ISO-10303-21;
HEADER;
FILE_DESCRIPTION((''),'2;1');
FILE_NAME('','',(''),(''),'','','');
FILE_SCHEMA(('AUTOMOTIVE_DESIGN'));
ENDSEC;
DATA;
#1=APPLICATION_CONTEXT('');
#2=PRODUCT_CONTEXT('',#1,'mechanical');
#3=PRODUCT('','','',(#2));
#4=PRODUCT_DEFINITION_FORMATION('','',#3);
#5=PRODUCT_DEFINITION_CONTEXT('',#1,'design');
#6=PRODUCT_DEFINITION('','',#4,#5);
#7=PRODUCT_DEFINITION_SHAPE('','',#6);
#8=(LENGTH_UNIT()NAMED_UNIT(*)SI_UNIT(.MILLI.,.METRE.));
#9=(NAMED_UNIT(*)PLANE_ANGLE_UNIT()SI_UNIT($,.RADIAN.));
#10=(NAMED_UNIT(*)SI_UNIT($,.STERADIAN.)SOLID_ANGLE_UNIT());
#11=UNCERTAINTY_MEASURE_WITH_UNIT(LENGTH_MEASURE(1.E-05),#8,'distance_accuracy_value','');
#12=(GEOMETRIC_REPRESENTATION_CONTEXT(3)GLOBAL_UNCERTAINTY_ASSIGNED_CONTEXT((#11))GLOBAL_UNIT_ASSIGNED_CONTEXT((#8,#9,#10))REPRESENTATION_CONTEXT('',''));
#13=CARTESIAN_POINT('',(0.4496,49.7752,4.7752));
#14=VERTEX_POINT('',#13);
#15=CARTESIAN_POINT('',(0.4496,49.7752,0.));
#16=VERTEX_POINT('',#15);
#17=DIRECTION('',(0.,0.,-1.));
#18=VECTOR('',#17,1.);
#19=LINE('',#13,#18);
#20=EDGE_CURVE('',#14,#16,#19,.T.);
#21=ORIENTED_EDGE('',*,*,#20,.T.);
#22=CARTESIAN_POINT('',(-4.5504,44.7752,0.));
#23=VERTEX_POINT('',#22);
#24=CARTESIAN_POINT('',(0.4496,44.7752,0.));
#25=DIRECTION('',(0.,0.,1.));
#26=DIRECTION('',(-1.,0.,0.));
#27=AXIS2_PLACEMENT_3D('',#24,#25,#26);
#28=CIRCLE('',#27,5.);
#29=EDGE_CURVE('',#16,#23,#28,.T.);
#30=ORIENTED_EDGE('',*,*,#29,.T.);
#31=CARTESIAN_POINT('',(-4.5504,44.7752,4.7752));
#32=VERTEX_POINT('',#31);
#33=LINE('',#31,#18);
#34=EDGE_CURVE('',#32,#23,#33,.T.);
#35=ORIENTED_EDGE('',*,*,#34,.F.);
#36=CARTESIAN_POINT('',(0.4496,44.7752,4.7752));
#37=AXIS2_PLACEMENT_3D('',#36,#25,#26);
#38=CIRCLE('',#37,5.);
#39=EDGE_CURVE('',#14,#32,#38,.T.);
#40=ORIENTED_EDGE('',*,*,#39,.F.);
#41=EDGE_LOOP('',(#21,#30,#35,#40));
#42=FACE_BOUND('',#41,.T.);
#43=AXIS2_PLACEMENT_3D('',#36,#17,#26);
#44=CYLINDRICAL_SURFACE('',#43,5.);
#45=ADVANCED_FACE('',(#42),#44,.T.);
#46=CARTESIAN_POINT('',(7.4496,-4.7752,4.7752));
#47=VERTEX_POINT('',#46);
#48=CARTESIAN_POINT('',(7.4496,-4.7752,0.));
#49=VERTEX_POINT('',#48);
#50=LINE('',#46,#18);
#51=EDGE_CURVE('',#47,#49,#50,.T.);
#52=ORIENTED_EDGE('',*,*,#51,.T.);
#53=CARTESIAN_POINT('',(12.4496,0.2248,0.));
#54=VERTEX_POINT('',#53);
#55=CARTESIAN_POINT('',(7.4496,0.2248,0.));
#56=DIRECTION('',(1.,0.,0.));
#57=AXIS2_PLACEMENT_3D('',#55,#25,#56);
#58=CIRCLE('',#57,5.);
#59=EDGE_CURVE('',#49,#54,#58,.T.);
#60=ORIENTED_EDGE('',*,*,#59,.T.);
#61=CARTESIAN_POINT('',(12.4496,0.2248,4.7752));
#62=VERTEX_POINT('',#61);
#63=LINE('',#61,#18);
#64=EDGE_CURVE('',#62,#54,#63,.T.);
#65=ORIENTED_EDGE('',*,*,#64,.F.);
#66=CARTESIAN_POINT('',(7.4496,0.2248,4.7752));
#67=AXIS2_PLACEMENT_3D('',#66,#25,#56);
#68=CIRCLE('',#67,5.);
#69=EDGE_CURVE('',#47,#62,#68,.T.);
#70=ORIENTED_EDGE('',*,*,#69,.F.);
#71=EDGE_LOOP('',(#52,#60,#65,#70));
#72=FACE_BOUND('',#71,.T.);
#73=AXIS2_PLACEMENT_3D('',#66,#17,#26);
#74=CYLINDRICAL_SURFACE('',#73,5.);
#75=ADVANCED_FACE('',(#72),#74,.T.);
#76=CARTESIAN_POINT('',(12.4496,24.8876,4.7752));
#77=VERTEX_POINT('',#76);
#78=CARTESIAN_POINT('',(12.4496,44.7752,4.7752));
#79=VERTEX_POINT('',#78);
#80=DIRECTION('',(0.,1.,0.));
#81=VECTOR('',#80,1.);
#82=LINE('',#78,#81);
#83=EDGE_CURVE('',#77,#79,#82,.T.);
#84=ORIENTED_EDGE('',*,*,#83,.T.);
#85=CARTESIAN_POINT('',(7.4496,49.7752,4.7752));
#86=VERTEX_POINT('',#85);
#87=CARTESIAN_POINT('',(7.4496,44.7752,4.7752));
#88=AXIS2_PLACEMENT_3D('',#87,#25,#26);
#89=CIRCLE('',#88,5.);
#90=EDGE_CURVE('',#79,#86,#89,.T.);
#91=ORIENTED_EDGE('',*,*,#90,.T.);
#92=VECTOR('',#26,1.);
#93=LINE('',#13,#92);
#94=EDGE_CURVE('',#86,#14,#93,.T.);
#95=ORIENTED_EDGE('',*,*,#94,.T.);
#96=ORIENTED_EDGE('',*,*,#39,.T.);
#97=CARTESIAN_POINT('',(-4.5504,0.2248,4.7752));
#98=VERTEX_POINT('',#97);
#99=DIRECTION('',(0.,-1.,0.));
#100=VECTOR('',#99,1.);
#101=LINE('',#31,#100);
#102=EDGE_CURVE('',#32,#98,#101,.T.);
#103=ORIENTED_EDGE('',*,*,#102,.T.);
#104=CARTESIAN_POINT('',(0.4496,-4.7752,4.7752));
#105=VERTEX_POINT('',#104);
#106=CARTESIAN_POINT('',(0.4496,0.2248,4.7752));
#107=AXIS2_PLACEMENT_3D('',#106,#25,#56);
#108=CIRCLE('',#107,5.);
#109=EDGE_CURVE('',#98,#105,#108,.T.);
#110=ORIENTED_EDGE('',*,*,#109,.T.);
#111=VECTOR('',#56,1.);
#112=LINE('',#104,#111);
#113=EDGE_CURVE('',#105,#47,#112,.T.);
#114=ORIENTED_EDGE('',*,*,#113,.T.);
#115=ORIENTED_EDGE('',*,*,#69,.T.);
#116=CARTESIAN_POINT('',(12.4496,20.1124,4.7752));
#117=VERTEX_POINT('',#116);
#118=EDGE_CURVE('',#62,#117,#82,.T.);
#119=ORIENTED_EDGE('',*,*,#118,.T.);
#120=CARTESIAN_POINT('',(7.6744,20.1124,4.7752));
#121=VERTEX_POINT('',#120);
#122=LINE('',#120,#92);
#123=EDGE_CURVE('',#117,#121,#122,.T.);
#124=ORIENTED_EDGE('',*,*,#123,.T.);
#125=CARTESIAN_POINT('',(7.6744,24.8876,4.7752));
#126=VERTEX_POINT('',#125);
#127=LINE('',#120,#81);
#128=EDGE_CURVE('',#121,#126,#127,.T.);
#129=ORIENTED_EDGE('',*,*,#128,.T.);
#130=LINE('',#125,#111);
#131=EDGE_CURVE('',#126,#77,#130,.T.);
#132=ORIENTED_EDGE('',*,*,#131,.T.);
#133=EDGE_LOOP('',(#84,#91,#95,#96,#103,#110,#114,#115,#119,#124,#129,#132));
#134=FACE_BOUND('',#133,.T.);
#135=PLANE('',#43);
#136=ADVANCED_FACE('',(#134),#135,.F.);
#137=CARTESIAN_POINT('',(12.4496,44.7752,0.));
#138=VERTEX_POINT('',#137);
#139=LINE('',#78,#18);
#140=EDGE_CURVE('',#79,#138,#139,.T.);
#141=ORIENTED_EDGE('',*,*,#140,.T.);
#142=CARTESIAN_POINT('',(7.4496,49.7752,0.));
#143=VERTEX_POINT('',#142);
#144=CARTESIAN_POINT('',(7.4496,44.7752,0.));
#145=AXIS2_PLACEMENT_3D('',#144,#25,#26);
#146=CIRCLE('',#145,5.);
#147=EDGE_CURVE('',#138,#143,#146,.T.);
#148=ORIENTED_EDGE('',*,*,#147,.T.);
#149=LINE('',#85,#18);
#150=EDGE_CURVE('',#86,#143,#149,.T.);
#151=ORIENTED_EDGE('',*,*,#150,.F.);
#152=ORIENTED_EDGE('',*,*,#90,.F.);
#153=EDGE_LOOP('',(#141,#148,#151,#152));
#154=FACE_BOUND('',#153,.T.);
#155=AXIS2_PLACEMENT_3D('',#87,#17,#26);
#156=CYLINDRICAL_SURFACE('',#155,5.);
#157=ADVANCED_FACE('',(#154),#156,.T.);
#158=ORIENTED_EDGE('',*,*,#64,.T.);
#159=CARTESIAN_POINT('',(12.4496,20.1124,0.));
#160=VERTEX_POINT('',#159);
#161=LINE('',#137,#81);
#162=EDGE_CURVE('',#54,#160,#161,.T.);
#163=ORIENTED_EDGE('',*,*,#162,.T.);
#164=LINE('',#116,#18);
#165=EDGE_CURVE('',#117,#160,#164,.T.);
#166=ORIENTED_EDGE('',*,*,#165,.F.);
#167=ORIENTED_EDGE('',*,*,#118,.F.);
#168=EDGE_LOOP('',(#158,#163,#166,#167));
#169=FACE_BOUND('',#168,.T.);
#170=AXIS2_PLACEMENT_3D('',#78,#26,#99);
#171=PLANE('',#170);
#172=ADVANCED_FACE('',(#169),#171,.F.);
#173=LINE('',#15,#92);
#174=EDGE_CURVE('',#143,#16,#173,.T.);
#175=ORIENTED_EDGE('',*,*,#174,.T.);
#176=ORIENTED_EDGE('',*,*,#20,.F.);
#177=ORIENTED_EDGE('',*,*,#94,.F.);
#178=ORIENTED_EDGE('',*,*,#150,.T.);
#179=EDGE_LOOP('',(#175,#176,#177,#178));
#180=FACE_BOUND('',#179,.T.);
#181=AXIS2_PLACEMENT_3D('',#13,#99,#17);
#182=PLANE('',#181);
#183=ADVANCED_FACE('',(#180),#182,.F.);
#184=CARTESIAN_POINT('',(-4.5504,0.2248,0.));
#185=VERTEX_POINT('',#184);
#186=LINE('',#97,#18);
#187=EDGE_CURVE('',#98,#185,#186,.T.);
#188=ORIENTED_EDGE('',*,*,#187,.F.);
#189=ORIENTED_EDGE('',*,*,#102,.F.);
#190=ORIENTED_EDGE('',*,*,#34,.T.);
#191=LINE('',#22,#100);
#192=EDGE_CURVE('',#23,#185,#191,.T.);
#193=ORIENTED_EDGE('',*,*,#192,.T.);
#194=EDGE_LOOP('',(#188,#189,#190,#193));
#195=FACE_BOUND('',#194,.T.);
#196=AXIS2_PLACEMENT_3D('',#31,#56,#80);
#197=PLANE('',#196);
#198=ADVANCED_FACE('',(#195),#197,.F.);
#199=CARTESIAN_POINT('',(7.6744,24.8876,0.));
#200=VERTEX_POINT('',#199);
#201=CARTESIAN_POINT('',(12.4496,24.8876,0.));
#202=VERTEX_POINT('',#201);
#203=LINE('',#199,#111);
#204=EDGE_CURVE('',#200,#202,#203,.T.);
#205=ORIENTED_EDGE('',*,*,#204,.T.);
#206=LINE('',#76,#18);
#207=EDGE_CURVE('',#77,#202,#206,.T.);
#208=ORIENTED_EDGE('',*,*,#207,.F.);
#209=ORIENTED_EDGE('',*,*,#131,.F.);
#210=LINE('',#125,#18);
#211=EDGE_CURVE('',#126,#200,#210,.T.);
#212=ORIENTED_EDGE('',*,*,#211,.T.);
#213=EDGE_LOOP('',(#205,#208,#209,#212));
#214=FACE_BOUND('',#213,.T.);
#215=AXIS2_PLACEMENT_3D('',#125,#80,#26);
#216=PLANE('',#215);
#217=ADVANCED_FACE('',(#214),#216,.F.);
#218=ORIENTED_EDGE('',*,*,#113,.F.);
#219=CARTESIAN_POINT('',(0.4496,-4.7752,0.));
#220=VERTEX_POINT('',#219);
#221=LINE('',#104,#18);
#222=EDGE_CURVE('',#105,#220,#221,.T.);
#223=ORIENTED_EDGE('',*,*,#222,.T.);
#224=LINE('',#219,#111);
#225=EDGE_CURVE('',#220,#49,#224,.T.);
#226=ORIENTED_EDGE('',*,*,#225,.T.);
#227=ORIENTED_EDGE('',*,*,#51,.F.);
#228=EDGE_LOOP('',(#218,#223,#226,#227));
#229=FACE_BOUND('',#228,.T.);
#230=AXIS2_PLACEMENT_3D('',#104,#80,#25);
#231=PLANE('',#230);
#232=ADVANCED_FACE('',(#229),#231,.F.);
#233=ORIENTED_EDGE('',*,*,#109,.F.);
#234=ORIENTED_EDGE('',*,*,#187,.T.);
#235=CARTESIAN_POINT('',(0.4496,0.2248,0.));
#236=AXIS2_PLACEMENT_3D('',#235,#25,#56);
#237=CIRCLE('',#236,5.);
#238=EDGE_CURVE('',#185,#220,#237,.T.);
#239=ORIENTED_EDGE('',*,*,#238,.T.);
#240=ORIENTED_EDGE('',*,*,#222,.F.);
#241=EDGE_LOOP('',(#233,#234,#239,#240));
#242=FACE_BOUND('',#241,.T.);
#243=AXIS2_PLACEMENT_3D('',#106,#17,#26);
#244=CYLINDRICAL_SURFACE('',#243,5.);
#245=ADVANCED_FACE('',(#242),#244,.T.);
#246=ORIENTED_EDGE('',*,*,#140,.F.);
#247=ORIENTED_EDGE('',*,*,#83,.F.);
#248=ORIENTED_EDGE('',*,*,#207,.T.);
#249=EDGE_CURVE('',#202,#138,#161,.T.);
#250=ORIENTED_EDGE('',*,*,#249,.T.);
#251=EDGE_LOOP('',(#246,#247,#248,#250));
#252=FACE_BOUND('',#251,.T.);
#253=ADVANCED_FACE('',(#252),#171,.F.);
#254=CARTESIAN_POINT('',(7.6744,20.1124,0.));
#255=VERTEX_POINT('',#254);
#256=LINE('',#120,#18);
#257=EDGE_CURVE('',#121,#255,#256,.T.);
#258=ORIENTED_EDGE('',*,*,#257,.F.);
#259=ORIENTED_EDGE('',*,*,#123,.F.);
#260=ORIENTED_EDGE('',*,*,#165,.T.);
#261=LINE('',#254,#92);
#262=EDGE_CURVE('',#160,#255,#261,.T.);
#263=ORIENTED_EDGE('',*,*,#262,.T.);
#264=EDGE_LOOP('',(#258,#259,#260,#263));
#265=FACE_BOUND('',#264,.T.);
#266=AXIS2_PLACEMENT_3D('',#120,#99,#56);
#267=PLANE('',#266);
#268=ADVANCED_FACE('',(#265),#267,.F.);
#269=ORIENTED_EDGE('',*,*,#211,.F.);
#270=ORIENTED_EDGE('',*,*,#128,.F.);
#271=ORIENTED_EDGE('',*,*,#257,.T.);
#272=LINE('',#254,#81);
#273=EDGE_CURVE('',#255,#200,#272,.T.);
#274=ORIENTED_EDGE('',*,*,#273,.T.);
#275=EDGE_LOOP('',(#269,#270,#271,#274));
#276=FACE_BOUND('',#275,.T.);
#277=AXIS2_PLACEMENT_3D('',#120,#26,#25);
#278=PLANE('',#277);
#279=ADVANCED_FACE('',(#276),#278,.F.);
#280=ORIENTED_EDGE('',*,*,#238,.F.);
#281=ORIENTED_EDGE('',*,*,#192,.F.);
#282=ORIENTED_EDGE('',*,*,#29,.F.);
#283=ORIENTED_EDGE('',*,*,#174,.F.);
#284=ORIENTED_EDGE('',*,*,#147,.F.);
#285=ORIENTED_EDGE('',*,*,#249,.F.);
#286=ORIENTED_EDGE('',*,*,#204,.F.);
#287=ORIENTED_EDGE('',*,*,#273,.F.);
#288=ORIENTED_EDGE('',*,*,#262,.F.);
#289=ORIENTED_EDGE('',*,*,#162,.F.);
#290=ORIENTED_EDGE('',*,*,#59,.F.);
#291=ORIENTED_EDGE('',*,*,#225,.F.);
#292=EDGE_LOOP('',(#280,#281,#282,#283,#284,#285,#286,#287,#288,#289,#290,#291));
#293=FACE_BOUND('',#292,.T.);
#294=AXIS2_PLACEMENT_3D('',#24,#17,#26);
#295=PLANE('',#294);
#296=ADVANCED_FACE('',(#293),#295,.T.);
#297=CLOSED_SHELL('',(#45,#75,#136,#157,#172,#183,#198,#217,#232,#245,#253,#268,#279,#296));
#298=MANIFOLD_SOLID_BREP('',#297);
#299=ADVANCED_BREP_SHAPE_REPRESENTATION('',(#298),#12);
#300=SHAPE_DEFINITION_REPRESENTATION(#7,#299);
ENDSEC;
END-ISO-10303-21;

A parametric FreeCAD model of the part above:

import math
import FreeCAD as App
import Part
import Sketcher
from FreeCAD import Vector

doc = App.newDocument("Part")
body = doc.addObject("PartDesign::Body", "Body")

# Sketch on XY plane
sketch1 = doc.addObject("Sketcher::SketchObject", "Sketch")
body.addObject(sketch1)
sketch1.AttachmentSupport = (doc.XY_Plane, [""])
sketch1.MapMode = "FlatFace"
sketch1.addGeometry([
    Part.LineSegment(Vector(-5, 45, 0), Vector(-5, 0, 0)),  # 0
    Part.ArcOfCircle(Part.Circle(Vector(0, 0, 0), Vector(0, 0, 1), 5), math.radians(180), math.radians(270)),  # 1
    Part.LineSegment(Vector(0, -5, 0), Vector(7, -5, 0)),  # 2
    Part.ArcOfCircle(Part.Circle(Vector(7, 0, 0), Vector(0, 0, 1), 5), math.radians(-90), math.radians(0)),  # 3
    Part.LineSegment(Vector(12, 0, 0), Vector(12, 45, 0)),  # 4
    Part.ArcOfCircle(Part.Circle(Vector(7, 45, 0), Vector(0, 0, 1), 5), math.radians(0), math.radians(90)),  # 5
    Part.LineSegment(Vector(7, 50, 0), Vector(0, 50, 0)),  # 6
    Part.ArcOfCircle(Part.Circle(Vector(0, 45, 0), Vector(0, 0, 1), 5), math.radians(90), math.radians(180)),  # 7
], False)
sketch1.addConstraint([
    Sketcher.Constraint("Tangent", 0, 2, 1, 1),
    Sketcher.Constraint("Tangent", 1, 2, 2, 1),
    Sketcher.Constraint("Tangent", 2, 2, 3, 1),
    Sketcher.Constraint("Tangent", 3, 2, 4, 1),
    Sketcher.Constraint("Tangent", 4, 2, 5, 1),
    Sketcher.Constraint("Tangent", 5, 2, 6, 1),
    Sketcher.Constraint("Tangent", 6, 2, 7, 1),
    Sketcher.Constraint("Tangent", 7, 2, 0, 1),
    Sketcher.Constraint("Vertical", 0),
    Sketcher.Constraint("Horizontal", 2),
    Sketcher.Constraint("Vertical", 4),
    Sketcher.Constraint("Horizontal", 6),
    Sketcher.Constraint("Equal", 1, 3),
    Sketcher.Constraint("Equal", 3, 5),
    Sketcher.Constraint("Equal", 5, 7),
    Sketcher.Constraint("Radius", 1, 5.0),
    Sketcher.Constraint("DistanceX", 2, 1, 2, 2, 7.0),
    Sketcher.Constraint("DistanceY", 0, 2, 0, 1, 44.5504),
    Sketcher.Constraint("DistanceX", -1, 1, 1, 3, 0.4496),
    Sketcher.Constraint("DistanceY", -1, 1, 1, 3, 0.2248),
])
pad1 = doc.addObject("PartDesign::Pad", "Pad")
body.addObject(pad1)
pad1.Profile = sketch1
pad1.Length = 4.7752

# Sketch on XY plane
sketch2 = doc.addObject("Sketcher::SketchObject", "Sketch001")
body.addObject(sketch2)
sketch2.AttachmentSupport = (doc.XY_Plane, [""])
sketch2.MapMode = "FlatFace"
sketch2.addGeometry([
    Part.LineSegment(Vector(12.4, 24.9, 0), Vector(12.4, 20.1, 0)),
    Part.LineSegment(Vector(12.4, 20.1, 0), Vector(7.7, 20.1, 0)),
    Part.LineSegment(Vector(7.7, 20.1, 0), Vector(7.7, 24.9, 0)),
    Part.LineSegment(Vector(7.7, 24.9, 0), Vector(12.4, 24.9, 0)),
], False)
sketch2.addConstraint([
    Sketcher.Constraint("Coincident", 0, 2, 1, 1),
    Sketcher.Constraint("Coincident", 1, 2, 2, 1),
    Sketcher.Constraint("Coincident", 2, 2, 3, 1),
    Sketcher.Constraint("Coincident", 3, 2, 0, 1),
    Sketcher.Constraint("Vertical", 0),
    Sketcher.Constraint("Horizontal", 1),
    Sketcher.Constraint("Vertical", 2),
    Sketcher.Constraint("Horizontal", 3),
    Sketcher.Constraint("Equal", 3, 0),
    Sketcher.Constraint("DistanceX", 1, 2, 1, 1, 4.7752),
    Sketcher.Constraint("DistanceX", -1, 1, 0, 2, 12.4496),
    Sketcher.Constraint("DistanceY", -1, 1, 0, 2, 20.1124),
])
pocket1 = doc.addObject("PartDesign::Pocket", "Pocket")
body.addObject(pocket1)
pocket1.Profile = sketch2
pocket1.Length = 4.7752
pocket1.Reversed = True

doc.recompute()
